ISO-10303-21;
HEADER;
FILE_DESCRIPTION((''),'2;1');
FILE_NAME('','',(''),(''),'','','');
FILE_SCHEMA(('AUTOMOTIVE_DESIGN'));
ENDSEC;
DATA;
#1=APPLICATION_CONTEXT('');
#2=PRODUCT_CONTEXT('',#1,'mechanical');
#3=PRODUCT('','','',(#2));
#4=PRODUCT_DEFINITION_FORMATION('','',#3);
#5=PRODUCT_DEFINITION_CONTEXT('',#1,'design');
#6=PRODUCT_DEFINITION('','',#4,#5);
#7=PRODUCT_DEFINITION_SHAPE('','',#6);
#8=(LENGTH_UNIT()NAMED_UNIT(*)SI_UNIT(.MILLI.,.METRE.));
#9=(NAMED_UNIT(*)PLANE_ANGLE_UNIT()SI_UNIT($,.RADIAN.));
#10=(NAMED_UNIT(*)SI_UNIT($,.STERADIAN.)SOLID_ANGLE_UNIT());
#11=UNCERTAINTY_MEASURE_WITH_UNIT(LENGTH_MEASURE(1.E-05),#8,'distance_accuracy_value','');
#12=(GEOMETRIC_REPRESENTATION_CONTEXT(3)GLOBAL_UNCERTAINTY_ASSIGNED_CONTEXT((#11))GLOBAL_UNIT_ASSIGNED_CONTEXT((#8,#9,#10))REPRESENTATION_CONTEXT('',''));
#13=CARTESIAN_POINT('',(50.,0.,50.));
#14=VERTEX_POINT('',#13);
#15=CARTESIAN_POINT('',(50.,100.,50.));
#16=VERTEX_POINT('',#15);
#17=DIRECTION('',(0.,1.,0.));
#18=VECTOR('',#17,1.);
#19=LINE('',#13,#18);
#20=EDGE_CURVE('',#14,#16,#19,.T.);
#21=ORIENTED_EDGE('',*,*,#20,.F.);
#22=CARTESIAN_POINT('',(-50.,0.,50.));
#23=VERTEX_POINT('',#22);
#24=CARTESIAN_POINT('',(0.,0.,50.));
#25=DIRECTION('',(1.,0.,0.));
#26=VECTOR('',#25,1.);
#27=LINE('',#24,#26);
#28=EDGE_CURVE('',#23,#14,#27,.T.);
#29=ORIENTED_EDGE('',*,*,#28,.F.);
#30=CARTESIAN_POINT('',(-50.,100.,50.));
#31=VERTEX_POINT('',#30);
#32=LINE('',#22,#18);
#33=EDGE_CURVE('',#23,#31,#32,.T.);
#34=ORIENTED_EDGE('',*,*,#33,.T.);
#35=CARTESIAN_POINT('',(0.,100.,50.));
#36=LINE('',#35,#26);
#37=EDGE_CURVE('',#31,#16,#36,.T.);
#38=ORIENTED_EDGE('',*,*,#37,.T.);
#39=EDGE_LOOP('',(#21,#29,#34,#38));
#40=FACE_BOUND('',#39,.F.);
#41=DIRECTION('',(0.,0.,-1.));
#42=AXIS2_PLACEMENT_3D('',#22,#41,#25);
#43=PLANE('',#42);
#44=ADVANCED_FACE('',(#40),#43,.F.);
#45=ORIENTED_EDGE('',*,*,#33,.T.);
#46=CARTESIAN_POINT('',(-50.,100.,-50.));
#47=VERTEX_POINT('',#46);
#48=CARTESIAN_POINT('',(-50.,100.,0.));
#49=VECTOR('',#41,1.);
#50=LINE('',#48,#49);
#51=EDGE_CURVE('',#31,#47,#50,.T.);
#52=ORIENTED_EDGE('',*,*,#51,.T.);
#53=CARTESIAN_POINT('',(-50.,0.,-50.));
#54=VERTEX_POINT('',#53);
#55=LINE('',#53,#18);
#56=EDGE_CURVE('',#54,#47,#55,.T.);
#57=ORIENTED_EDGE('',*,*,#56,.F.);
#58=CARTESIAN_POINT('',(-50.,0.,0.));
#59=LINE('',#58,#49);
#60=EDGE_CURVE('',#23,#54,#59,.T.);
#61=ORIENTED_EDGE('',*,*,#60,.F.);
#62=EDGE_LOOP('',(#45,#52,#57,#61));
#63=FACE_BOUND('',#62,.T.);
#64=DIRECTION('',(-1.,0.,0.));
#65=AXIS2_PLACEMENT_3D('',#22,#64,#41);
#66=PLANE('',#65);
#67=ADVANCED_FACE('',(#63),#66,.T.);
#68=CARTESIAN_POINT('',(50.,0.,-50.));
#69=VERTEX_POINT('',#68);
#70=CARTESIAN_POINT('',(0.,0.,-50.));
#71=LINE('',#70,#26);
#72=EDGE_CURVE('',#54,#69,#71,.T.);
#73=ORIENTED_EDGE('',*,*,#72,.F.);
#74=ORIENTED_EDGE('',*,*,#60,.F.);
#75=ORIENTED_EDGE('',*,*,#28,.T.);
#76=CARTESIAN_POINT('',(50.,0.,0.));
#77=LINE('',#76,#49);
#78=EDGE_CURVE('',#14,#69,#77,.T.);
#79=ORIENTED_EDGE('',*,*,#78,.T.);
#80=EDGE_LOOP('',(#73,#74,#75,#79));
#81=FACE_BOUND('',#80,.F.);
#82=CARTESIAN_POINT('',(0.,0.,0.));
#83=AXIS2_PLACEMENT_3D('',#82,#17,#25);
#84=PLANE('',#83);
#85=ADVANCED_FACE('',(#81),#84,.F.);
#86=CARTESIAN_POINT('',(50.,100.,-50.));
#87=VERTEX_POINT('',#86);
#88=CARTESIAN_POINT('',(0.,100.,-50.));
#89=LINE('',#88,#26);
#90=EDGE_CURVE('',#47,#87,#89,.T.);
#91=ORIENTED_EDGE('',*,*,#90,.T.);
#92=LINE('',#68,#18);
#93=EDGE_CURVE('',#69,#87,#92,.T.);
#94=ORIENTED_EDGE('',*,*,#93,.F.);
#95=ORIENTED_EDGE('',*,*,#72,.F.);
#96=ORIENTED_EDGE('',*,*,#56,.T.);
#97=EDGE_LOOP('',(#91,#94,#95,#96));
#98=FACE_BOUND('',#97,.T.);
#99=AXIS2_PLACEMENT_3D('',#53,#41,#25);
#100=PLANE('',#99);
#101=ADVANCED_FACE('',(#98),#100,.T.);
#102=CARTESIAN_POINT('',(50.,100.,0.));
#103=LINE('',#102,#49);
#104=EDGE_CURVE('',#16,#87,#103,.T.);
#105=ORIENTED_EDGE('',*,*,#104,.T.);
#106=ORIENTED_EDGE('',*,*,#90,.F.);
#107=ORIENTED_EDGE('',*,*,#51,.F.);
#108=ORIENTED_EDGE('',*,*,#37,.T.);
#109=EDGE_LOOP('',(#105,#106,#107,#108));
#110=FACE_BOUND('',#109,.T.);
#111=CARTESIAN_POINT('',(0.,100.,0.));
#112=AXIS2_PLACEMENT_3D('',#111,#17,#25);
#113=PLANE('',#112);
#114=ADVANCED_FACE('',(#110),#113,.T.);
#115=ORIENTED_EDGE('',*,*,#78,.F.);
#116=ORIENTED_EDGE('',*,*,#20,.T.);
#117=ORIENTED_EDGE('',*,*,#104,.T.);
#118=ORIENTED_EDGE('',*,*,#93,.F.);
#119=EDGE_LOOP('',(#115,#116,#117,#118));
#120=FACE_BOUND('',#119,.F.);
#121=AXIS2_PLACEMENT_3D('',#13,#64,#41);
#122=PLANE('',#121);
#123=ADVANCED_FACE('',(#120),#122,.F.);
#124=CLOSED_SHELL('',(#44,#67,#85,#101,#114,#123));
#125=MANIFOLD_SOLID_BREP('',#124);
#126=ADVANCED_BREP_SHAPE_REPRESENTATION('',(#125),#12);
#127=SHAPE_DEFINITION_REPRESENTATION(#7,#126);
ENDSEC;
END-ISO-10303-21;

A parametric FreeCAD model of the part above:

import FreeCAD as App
import Part
import Sketcher
from FreeCAD import Vector

doc = App.newDocument("Part")
params = doc.addObject("Spreadsheet::Sheet", "Params")
for row, (alias, value) in enumerate([
    ("sketch1_width", "100 mm"),
    ("pad1_length", "100 mm"),
], start=1):
    params.set(f"A{row}", alias)
    params.set(f"B{row}", "=" + value)
    params.setAlias(f"B{row}", alias)

body = doc.addObject("PartDesign::Body", "Body")

sketch1 = body.newObject("Sketcher::SketchObject", "Sketch")
sketch1.AttachmentSupport = (doc.getObject("XZ_Plane"), [""])
sketch1.MapMode = "FlatFace"
sketch1.addGeometry([
    Part.LineSegment(Vector(-50, -50, 0), Vector(-50, 50, 0)),
    Part.LineSegment(Vector(-50, 50, 0), Vector(50, 50, 0)),
    Part.LineSegment(Vector(50, 50, 0), Vector(50, -50, 0)),
    Part.LineSegment(Vector(50, -50, 0), Vector(-50, -50, 0)),
], False)
sketch1.addConstraint([
    Sketcher.Constraint("Coincident", 0, 2, 1, 1),
    Sketcher.Constraint("Coincident", 1, 2, 2, 1),
    Sketcher.Constraint("Coincident", 2, 2, 3, 1),
    Sketcher.Constraint("Coincident", 3, 2, 0, 1),
    Sketcher.Constraint("Vertical", 0),
    Sketcher.Constraint("Horizontal", 1),
    Sketcher.Constraint("Vertical", 2),
    Sketcher.Constraint("Horizontal", 3),
    Sketcher.Constraint("Symmetric", 0, 2, 2, 2, -1, 1),
    Sketcher.Constraint("Equal", 3, 0),
    Sketcher.Constraint("DistanceX", 1, 1, 1, 2, 100.0),
])
sketch1.setExpression("Constraints[10]", "Params.sketch1_width")
pad1 = body.newObject("PartDesign::Pad", "Pad")
pad1.Profile = sketch1
pad1.setExpression("Length", "Params.pad1_length")
pad1.Reversed = True

doc.recompute()
